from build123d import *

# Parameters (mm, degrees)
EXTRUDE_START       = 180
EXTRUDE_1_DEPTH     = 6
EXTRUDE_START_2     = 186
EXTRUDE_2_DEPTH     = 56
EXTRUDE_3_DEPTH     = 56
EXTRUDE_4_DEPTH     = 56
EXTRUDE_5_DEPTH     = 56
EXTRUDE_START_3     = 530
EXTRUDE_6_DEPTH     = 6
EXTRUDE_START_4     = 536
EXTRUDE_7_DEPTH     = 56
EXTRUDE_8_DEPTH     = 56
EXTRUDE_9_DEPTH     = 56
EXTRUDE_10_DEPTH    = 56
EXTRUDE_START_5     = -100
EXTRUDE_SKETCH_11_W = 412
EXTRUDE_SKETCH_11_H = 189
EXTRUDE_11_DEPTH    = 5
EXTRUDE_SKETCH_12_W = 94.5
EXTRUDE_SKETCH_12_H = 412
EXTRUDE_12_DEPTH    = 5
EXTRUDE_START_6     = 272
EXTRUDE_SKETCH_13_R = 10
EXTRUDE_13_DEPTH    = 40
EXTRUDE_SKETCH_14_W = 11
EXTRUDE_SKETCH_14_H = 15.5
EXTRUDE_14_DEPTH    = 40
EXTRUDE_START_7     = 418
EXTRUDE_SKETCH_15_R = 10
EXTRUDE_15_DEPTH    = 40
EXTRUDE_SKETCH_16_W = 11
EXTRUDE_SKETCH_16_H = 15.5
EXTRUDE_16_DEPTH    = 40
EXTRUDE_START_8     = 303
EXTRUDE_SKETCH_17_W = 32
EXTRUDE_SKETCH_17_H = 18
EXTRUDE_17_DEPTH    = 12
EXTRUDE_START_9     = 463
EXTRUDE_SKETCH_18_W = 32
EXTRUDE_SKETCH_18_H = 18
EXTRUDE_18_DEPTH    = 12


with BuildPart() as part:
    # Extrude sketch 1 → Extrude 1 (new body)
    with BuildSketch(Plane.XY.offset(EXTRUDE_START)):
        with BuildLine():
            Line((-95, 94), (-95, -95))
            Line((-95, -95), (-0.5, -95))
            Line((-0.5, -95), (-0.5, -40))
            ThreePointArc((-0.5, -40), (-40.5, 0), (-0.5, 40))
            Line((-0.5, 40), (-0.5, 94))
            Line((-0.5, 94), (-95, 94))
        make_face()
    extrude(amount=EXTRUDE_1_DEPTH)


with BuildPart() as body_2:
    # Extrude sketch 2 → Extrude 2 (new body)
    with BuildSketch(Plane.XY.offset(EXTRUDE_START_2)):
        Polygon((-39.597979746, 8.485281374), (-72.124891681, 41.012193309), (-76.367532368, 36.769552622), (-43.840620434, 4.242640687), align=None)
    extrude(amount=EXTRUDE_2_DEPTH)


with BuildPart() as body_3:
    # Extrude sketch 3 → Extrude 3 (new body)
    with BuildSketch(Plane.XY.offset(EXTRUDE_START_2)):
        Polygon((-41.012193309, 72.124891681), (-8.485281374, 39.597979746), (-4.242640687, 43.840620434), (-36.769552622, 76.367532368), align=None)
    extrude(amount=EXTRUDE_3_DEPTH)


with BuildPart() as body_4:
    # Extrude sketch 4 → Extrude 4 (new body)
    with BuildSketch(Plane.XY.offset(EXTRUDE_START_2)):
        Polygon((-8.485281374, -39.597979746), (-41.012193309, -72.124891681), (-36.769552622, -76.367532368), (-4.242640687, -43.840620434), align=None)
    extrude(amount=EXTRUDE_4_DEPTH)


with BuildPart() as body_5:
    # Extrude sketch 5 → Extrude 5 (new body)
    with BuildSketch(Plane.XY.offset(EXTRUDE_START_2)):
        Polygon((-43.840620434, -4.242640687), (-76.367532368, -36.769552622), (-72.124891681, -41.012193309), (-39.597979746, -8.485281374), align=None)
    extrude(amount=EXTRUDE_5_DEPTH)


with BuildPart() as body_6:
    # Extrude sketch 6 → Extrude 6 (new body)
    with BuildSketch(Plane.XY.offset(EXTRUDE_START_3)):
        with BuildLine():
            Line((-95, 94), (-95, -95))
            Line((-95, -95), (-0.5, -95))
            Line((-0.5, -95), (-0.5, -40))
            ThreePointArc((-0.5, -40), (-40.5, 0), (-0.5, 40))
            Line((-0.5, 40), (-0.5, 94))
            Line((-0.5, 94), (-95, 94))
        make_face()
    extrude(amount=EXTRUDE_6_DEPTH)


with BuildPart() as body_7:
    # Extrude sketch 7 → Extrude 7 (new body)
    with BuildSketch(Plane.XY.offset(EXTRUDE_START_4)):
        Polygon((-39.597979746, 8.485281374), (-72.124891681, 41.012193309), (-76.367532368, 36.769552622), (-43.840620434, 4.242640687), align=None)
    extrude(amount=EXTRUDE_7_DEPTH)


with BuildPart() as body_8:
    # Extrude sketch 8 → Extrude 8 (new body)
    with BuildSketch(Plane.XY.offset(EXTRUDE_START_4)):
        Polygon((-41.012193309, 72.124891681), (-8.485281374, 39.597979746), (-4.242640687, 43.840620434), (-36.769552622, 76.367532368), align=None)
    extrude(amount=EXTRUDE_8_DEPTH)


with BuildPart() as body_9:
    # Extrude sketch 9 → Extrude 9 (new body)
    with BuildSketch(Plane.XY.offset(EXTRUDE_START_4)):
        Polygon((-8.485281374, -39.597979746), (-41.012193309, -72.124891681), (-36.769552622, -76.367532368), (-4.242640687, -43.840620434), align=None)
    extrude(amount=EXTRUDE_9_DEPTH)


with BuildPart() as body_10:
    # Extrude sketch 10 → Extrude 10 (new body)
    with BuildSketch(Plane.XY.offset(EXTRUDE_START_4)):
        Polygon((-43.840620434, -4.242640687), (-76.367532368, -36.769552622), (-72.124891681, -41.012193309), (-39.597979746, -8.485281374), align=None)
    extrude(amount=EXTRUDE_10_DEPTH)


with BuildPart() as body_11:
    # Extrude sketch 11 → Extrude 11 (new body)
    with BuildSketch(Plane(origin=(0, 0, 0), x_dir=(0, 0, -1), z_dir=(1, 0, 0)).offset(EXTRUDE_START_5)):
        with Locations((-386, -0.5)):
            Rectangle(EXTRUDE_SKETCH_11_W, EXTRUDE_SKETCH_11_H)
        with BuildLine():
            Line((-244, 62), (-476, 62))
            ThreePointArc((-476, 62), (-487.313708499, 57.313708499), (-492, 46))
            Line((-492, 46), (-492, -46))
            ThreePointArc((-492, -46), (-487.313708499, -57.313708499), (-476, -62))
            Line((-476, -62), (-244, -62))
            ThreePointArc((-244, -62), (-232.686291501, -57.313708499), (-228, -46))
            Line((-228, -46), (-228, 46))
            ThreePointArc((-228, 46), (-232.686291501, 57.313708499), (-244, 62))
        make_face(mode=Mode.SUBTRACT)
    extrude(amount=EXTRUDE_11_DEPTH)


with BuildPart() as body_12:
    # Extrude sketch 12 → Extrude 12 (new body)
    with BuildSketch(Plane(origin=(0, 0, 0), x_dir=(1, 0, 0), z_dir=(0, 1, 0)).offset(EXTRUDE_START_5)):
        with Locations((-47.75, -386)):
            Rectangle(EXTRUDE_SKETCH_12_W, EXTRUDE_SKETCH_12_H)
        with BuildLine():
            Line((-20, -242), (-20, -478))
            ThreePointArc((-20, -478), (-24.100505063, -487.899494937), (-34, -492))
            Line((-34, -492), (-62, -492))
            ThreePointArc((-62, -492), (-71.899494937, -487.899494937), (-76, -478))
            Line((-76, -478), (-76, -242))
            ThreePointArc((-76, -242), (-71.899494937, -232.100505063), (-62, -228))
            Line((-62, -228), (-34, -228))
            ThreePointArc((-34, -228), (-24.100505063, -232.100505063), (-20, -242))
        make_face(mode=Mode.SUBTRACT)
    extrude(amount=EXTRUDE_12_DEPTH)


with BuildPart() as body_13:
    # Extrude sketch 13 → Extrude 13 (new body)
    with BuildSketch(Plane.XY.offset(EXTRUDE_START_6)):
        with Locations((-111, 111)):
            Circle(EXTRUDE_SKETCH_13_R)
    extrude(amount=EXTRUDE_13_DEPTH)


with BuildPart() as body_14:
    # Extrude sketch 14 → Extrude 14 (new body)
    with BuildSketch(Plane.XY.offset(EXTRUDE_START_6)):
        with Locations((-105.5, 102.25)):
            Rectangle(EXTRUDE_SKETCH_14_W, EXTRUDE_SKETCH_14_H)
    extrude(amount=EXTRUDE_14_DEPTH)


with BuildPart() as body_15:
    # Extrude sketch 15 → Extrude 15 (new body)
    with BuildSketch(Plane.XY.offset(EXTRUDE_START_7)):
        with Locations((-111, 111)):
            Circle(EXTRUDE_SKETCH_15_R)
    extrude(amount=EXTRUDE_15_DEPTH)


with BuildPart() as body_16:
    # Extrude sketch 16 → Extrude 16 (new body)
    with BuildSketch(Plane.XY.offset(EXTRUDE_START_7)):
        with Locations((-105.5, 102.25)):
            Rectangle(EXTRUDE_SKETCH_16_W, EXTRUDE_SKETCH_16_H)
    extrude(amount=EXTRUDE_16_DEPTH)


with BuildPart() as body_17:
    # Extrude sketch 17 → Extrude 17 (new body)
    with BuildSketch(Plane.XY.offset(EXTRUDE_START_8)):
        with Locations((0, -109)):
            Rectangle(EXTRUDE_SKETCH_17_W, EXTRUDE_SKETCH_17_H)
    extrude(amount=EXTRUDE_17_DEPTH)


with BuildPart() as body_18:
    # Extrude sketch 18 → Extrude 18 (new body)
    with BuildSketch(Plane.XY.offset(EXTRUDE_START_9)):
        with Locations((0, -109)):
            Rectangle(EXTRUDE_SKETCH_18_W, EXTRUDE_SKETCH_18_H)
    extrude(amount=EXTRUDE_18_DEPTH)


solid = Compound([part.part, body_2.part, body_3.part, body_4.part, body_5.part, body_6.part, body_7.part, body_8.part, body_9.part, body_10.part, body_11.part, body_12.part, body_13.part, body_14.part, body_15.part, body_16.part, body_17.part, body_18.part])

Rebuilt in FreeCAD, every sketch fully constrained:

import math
import FreeCAD as App
import Part
import Sketcher

V = App.Vector
Q = App.Units.Quantity

doc = App.newDocument("Part")
body = doc.addObject("PartDesign::Body", "Body")

# Sketch on XY plane
sketch1 = body.newObject("Sketcher::SketchObject", "Sketch")
sketch1.AttachmentSupport = (doc.getObject("XY_Plane"), [""])
sketch1.MapMode = "FlatFace"
sketch1.AttachmentOffset = App.Placement(V(0, 0, 180), App.Rotation())
sketch1.addGeometry(Part.LineSegment(V(-95, 94, 0), V(-95, -95, 0)), False)
sketch1.addGeometry(Part.LineSegment(V(-95, -95, 0), V(-0.5, -95, 0)), False)
sketch1.addGeometry(Part.LineSegment(V(-0.5, -95, 0), V(-0.5, -40, 0)), False)
sketch1.addGeometry(Part.ArcOfCircle(Part.Circle(V(-0.5, 0, 0), V(0, 0, 1), 40), math.radians(90), math.radians(270)), False)
sketch1.addGeometry(Part.LineSegment(V(-0.5, 40, 0), V(-0.5, 94, 0)), False)
sketch1.addGeometry(Part.LineSegment(V(-0.5, 94, 0), V(-95, 94, 0)), False)
sketch1.addConstraint(Sketcher.Constraint("Coincident", 0, 2, 1, 1))
sketch1.addConstraint(Sketcher.Constraint("Coincident", 1, 2, 2, 1))
sketch1.addConstraint(Sketcher.Constraint("Coincident", 2, 2, 3, 2))
sketch1.addConstraint(Sketcher.Constraint("Coincident", 3, 1, 4, 1))
sketch1.addConstraint(Sketcher.Constraint("Coincident", 4, 2, 5, 1))
sketch1.addConstraint(Sketcher.Constraint("Coincident", 5, 2, 0, 1))
sketch1.addConstraint(Sketcher.Constraint("Vertical", 0))
sketch1.addConstraint(Sketcher.Constraint("Horizontal", 1))
sketch1.addConstraint(Sketcher.Constraint("Vertical", 2))
sketch1.addConstraint(Sketcher.Constraint("Vertical", 4))
sketch1.addConstraint(Sketcher.Constraint("Horizontal", 5))
sketch1.addConstraint(Sketcher.Constraint("Symmetric", 2, 2, 3, 1, -1))
sketch1.addConstraint(Sketcher.Constraint("Vertical", 3, 3, 1, 2))
sketch1.addConstraint(Sketcher.Constraint("Radius", 3, Q("40 mm")))
sketch1.addConstraint(Sketcher.Constraint("DistanceY", 0, 2, 0, 1, Q("189 mm")))
sketch1.addConstraint(Sketcher.Constraint("DistanceY", 2, 1, 2, 2, Q("55 mm")))
sketch1.addConstraint(Sketcher.Constraint("DistanceX", 1, 1, 1, 2, Q("94.5 mm")))
sketch1.addConstraint(Sketcher.Constraint("DistanceX", 0, 2, -1, 1, Q("95 mm")))
pad1 = body.newObject("PartDesign::Pad", "Pad")
pad1.Profile = sketch1
pad1.Length = 6
body2 = doc.addObject("PartDesign::Body", "Body001")

# Sketch on XY plane
sketch2 = body2.newObject("Sketcher::SketchObject", "Sketch001")
sketch2.AttachmentSupport = (doc.getObject("XY_Plane001"), [""])
sketch2.MapMode = "FlatFace"
sketch2.AttachmentOffset = App.Placement(V(0, 0, 186), App.Rotation())
sketch2.addGeometry(Part.LineSegment(V(-39.59798, 8.485281, 0), V(-72.124892, 41.012193, 0)), False)
sketch2.addGeometry(Part.LineSegment(V(-72.124892, 41.012193, 0), V(-76.367532, 36.769553, 0)), False)
sketch2.addGeometry(Part.LineSegment(V(-76.367532, 36.769553, 0), V(-43.84062, 4.242641, 0)), False)
sketch2.addGeometry(Part.LineSegment(V(-43.84062, 4.242641, 0), V(-39.59798, 8.485281, 0)), False)
sketch2.addConstraint(Sketcher.Constraint("Coincident", 0, 2, 1, 1))
sketch2.addConstraint(Sketcher.Constraint("Coincident", 1, 2, 2, 1))
sketch2.addConstraint(Sketcher.Constraint("Coincident", 2, 2, 3, 1))
sketch2.addConstraint(Sketcher.Constraint("Coincident", 3, 2, 0, 1))
sketch2.addConstraint(Sketcher.Constraint("Perpendicular", 0, 1))
sketch2.addConstraint(Sketcher.Constraint("Perpendicular", 1, 2))
sketch2.addConstraint(Sketcher.Constraint("Perpendicular", 2, 3))
sketch2.addConstraint(Sketcher.Constraint("Angle", 0, Q("135 deg")))
sketch2.addConstraint(Sketcher.Constraint("Distance", 0, Q("46 mm")))
sketch2.addConstraint(Sketcher.Constraint("Distance", 1, Q("6 mm")))
sketch2.addConstraint(Sketcher.Constraint("DistanceX", 0, 2, -1, 1, Q("72.124892 mm")))
sketch2.addConstraint(Sketcher.Constraint("DistanceY", -1, 1, 2, 2, Q("4.242641 mm")))
pad2 = body2.newObject("PartDesign::Pad", "Pad001")
pad2.Profile = sketch2
pad2.Length = 56
body3 = doc.addObject("PartDesign::Body", "Body002")

# Sketch on XY plane
sketch3 = body3.newObject("Sketcher::SketchObject", "Sketch002")
sketch3.AttachmentSupport = (doc.getObject("XY_Plane002"), [""])
sketch3.MapMode = "FlatFace"
sketch3.AttachmentOffset = App.Placement(V(0, 0, 186), App.Rotation())
sketch3.addGeometry(Part.LineSegment(V(-41.012193, 72.124892, 0), V(-8.485281, 39.59798, 0)), False)
sketch3.addGeometry(Part.LineSegment(V(-8.485281, 39.59798, 0), V(-4.242641, 43.84062, 0)), False)
sketch3.addGeometry(Part.LineSegment(V(-4.242641, 43.84062, 0), V(-36.769553, 76.367532, 0)), False)
sketch3.addGeometry(Part.LineSegment(V(-36.769553, 76.367532, 0), V(-41.012193, 72.124892, 0)), False)
sketch3.addConstraint(Sketcher.Constraint("Coincident", 0, 2, 1, 1))
sketch3.addConstraint(Sketcher.Constraint("Coincident", 1, 2, 2, 1))
sketch3.addConstraint(Sketcher.Constraint("Coincident", 2, 2, 3, 1))
sketch3.addConstraint(Sketcher.Constraint("Coincident", 3, 2, 0, 1))
sketch3.addConstraint(Sketcher.Constraint("Perpendicular", 0, 1))
sketch3.addConstraint(Sketcher.Constraint("Perpendicular", 1, 2))
sketch3.addConstraint(Sketcher.Constraint("Perpendicular", 2, 3))
sketch3.addConstraint(Sketcher.Constraint("Angle", 0, Q("-45 deg")))
sketch3.addConstraint(Sketcher.Constraint("Distance", 0, Q("46 mm")))
sketch3.addConstraint(Sketcher.Constraint("Distance", 1, Q("6 mm")))
sketch3.addConstraint(Sketcher.Constraint("DistanceX", 0, 2, -1, 1, Q("8.485281 mm")))
sketch3.addConstraint(Sketcher.Constraint("DistanceY", -1, 1, 0, 2, Q("39.59798 mm")))
pad3 = body3.newObject("PartDesign::Pad", "Pad002")
pad3.Profile = sketch3
pad3.Length = 56
body4 = doc.addObject("PartDesign::Body", "Body003")

# Sketch on XY plane
sketch4 = body4.newObject("Sketcher::SketchObject", "Sketch003")
sketch4.AttachmentSupport = (doc.getObject("XY_Plane003"), [""])
sketch4.MapMode = "FlatFace"
sketch4.AttachmentOffset = App.Placement(V(0, 0, 186), App.Rotation())
sketch4.addGeometry(Part.LineSegment(V(-8.485281, -39.59798, 0), V(-41.012193, -72.124892, 0)), False)
sketch4.addGeometry(Part.LineSegment(V(-41.012193, -72.124892, 0), V(-36.769553, -76.367532, 0)), False)
sketch4.addGeometry(Part.LineSegment(V(-36.769553, -76.367532, 0), V(-4.242641, -43.84062, 0)), False)
sketch4.addGeometry(Part.LineSegment(V(-4.242641, -43.84062, 0), V(-8.485281, -39.59798, 0)), False)
sketch4.addConstraint(Sketcher.Constraint("Coincident", 0, 2, 1, 1))
sketch4.addConstraint(Sketcher.Constraint("Coincident", 1, 2, 2, 1))
sketch4.addConstraint(Sketcher.Constraint("Coincident", 2, 2, 3, 1))
sketch4.addConstraint(Sketcher.Constraint("Coincident", 3, 2, 0, 1))
sketch4.addConstraint(Sketcher.Constraint("Perpendicular", 0, 1))
sketch4.addConstraint(Sketcher.Constraint("Perpendicular", 1, 2))
sketch4.addConstraint(Sketcher.Constraint("Perpendicular", 2, 3))
sketch4.addConstraint(Sketcher.Constraint("Angle", 0, Q("-135 deg")))
sketch4.addConstraint(Sketcher.Constraint("Distance", 0, Q("46 mm")))
sketch4.addConstraint(Sketcher.Constraint("Distance", 1, Q("6 mm")))
sketch4.addConstraint(Sketcher.Constraint("DistanceY", 0, 2, -1, 1, Q("72.124892 mm")))
sketch4.addConstraint(Sketcher.Constraint("DistanceX", 2, 2, -1, 1, Q("4.242641 mm")))
pad4 = body4.newObject("PartDesign::Pad", "Pad003")
pad4.Profile = sketch4
pad4.Length = 56
body5 = doc.addObject("PartDesign::Body", "Body004")

# Sketch on XY plane
sketch5 = body5.newObject("Sketcher::SketchObject", "Sketch004")
sketch5.AttachmentSupport = (doc.getObject("XY_Plane004"), [""])
sketch5.MapMode = "FlatFace"
sketch5.AttachmentOffset = App.Placement(V(0, 0, 186), App.Rotation())
sketch5.addGeometry(Part.LineSegment(V(-43.84062, -4.242641, 0), V(-76.367532, -36.769553, 0)), False)
sketch5.addGeometry(Part.LineSegment(V(-76.367532, -36.769553, 0), V(-72.124892, -41.012193, 0)), False)
sketch5.addGeometry(Part.LineSegment(V(-72.124892, -41.012193, 0), V(-39.59798, -8.485281, 0)), False)
sketch5.addGeometry(Part.LineSegment(V(-39.59798, -8.485281, 0), V(-43.84062, -4.242641, 0)), False)
sketch5.addConstraint(Sketcher.Constraint("Coincident", 0, 2, 1, 1))
sketch5.addConstraint(Sketcher.Constraint("Coincident", 1, 2, 2, 1))
sketch5.addConstraint(Sketcher.Constraint("Coincident", 2, 2, 3, 1))
sketch5.addConstraint(Sketcher.Constraint("Coincident", 3, 2, 0, 1))
sketch5.addConstraint(Sketcher.Constraint("Perpendicular", 0, 1))
sketch5.addConstraint(Sketcher.Constraint("Perpendicular", 1, 2))
sketch5.addConstraint(Sketcher.Constraint("Perpendicular", 2, 3))
sketch5.addConstraint(Sketcher.Constraint("Angle", 0, Q("-135 deg")))
sketch5.addConstraint(Sketcher.Constraint("Distance", 0, Q("46 mm")))
sketch5.addConstraint(Sketcher.Constraint("Distance", 1, Q("6 mm")))
sketch5.addConstraint(Sketcher.Constraint("DistanceX", 1, 2, -1, 1, Q("72.124892 mm")))
sketch5.addConstraint(Sketcher.Constraint("DistanceY", 2, 2, -1, 1, Q("8.485281 mm")))
pad5 = body5.newObject("PartDesign::Pad", "Pad004")
pad5.Profile = sketch5
pad5.Length = 56
body6 = doc.addObject("PartDesign::Body", "Body005")

# Sketch on XY plane
sketch6 = body6.newObject("Sketcher::SketchObject", "Sketch005")
sketch6.AttachmentSupport = (doc.getObject("XY_Plane005"), [""])
sketch6.MapMode = "FlatFace"
sketch6.AttachmentOffset = App.Placement(V(0, 0, 530), App.Rotation())
sketch6.addGeometry(Part.LineSegment(V(-95, 94, 0), V(-95, -95, 0)), False)
sketch6.addGeometry(Part.LineSegment(V(-95, -95, 0), V(-0.5, -95, 0)), False)
sketch6.addGeometry(Part.LineSegment(V(-0.5, -95, 0), V(-0.5, -40, 0)), False)
sketch6.addGeometry(Part.ArcOfCircle(Part.Circle(V(-0.5, 0, 0), V(0, 0, 1), 40), math.radians(90), math.radians(270)), False)
sketch6.addGeometry(Part.LineSegment(V(-0.5, 40, 0), V(-0.5, 94, 0)), False)
sketch6.addGeometry(Part.LineSegment(V(-0.5, 94, 0), V(-95, 94, 0)), False)
sketch6.addConstraint(Sketcher.Constraint("Coincident", 0, 2, 1, 1))
sketch6.addConstraint(Sketcher.Constraint("Coincident", 1, 2, 2, 1))
sketch6.addConstraint(Sketcher.Constraint("Coincident", 2, 2, 3, 2))
sketch6.addConstraint(Sketcher.Constraint("Coincident", 3, 1, 4, 1))
sketch6.addConstraint(Sketcher.Constraint("Coincident", 4, 2, 5, 1))
sketch6.addConstraint(Sketcher.Constraint("Coincident", 5, 2, 0, 1))
sketch6.addConstraint(Sketcher.Constraint("Vertical", 0))
sketch6.addConstraint(Sketcher.Constraint("Horizontal", 1))
sketch6.addConstraint(Sketcher.Constraint("Vertical", 2))
sketch6.addConstraint(Sketcher.Constraint("Vertical", 4))
sketch6.addConstraint(Sketcher.Constraint("Horizontal", 5))
sketch6.addConstraint(Sketcher.Constraint("Symmetric", 2, 2, 3, 1, -1))
sketch6.addConstraint(Sketcher.Constraint("Vertical", 3, 3, 1, 2))
sketch6.addConstraint(Sketcher.Constraint("Radius", 3, Q("40 mm")))
sketch6.addConstraint(Sketcher.Constraint("DistanceY", 0, 2, 0, 1, Q("189 mm")))
sketch6.addConstraint(Sketcher.Constraint("DistanceY", 2, 1, 2, 2, Q("55 mm")))
sketch6.addConstraint(Sketcher.Constraint("DistanceX", 1, 1, 1, 2, Q("94.5 mm")))
sketch6.addConstraint(Sketcher.Constraint("DistanceX", 0, 2, -1, 1, Q("95 mm")))
pad6 = body6.newObject("PartDesign::Pad", "Pad005")
pad6.Profile = sketch6
pad6.Length = 6
body7 = doc.addObject("PartDesign::Body", "Body006")

# Sketch on XY plane
sketch7 = body7.newObject("Sketcher::SketchObject", "Sketch006")
sketch7.AttachmentSupport = (doc.getObject("XY_Plane006"), [""])
sketch7.MapMode = "FlatFace"
sketch7.AttachmentOffset = App.Placement(V(0, 0, 536), App.Rotation())
sketch7.addGeometry(Part.LineSegment(V(-39.59798, 8.485281, 0), V(-72.124892, 41.012193, 0)), False)
sketch7.addGeometry(Part.LineSegment(V(-72.124892, 41.012193, 0), V(-76.367532, 36.769553, 0)), False)
sketch7.addGeometry(Part.LineSegment(V(-76.367532, 36.769553, 0), V(-43.84062, 4.242641, 0)), False)
sketch7.addGeometry(Part.LineSegment(V(-43.84062, 4.242641, 0), V(-39.59798, 8.485281, 0)), False)
sketch7.addConstraint(Sketcher.Constraint("Coincident", 0, 2, 1, 1))
sketch7.addConstraint(Sketcher.Constraint("Coincident", 1, 2, 2, 1))
sketch7.addConstraint(Sketcher.Constraint("Coincident", 2, 2, 3, 1))
sketch7.addConstraint(Sketcher.Constraint("Coincident", 3, 2, 0, 1))
sketch7.addConstraint(Sketcher.Constraint("Perpendicular", 0, 1))
sketch7.addConstraint(Sketcher.Constraint("Perpendicular", 1, 2))
sketch7.addConstraint(Sketcher.Constraint("Perpendicular", 2, 3))
sketch7.addConstraint(Sketcher.Constraint("Angle", 0, Q("135 deg")))
sketch7.addConstraint(Sketcher.Constraint("Distance", 0, Q("46 mm")))
sketch7.addConstraint(Sketcher.Constraint("Distance", 1, Q("6 mm")))
sketch7.addConstraint(Sketcher.Constraint("DistanceX", 0, 2, -1, 1, Q("72.124892 mm")))
sketch7.addConstraint(Sketcher.Constraint("DistanceY", -1, 1, 2, 2, Q("4.242641 mm")))
pad7 = body7.newObject("PartDesign::Pad", "Pad006")
pad7.Profile = sketch7
pad7.Length = 56
body8 = doc.addObject("PartDesign::Body", "Body007")

# Sketch on XY plane
sketch8 = body8.newObject("Sketcher::SketchObject", "Sketch007")
sketch8.AttachmentSupport = (doc.getObject("XY_Plane007"), [""])
sketch8.MapMode = "FlatFace"
sketch8.AttachmentOffset = App.Placement(V(0, 0, 536), App.Rotation())
sketch8.addGeometry(Part.LineSegment(V(-41.012193, 72.124892, 0), V(-8.485281, 39.59798, 0)), False)
sketch8.addGeometry(Part.LineSegment(V(-8.485281, 39.59798, 0), V(-4.242641, 43.84062, 0)), False)
sketch8.addGeometry(Part.LineSegment(V(-4.242641, 43.84062, 0), V(-36.769553, 76.367532, 0)), False)
sketch8.addGeometry(Part.LineSegment(V(-36.769553, 76.367532, 0), V(-41.012193, 72.124892, 0)), False)
sketch8.addConstraint(Sketcher.Constraint("Coincident", 0, 2, 1, 1))
sketch8.addConstraint(Sketcher.Constraint("Coincident", 1, 2, 2, 1))
sketch8.addConstraint(Sketcher.Constraint("Coincident", 2, 2, 3, 1))
sketch8.addConstraint(Sketcher.Constraint("Coincident", 3, 2, 0, 1))
sketch8.addConstraint(Sketcher.Constraint("Perpendicular", 0, 1))
sketch8.addConstraint(Sketcher.Constraint("Perpendicular", 1, 2))
sketch8.addConstraint(Sketcher.Constraint("Perpendicular", 2, 3))
sketch8.addConstraint(Sketcher.Constraint("Angle", 0, Q("-45 deg")))
sketch8.addConstraint(Sketcher.Constraint("Distance", 0, Q("46 mm")))
sketch8.addConstraint(Sketcher.Constraint("Distance", 1, Q("6 mm")))
sketch8.addConstraint(Sketcher.Constraint("DistanceX", 0, 2, -1, 1, Q("8.485281 mm")))
sketch8.addConstraint(Sketcher.Constraint("DistanceY", -1, 1, 0, 2, Q("39.59798 mm")))
pad8 = body8.newObject("PartDesign::Pad", "Pad007")
pad8.Profile = sketch8
pad8.Length = 56
body9 = doc.addObject("PartDesign::Body", "Body008")

# Sketch on XY plane
sketch9 = body9.newObject("Sketcher::SketchObject", "Sketch008")
sketch9.AttachmentSupport = (doc.getObject("XY_Plane008"), [""])
sketch9.MapMode = "FlatFace"
sketch9.AttachmentOffset = App.Placement(V(0, 0, 536), App.Rotation())
sketch9.addGeometry(Part.LineSegment(V(-8.485281, -39.59798, 0), V(-41.012193, -72.124892, 0)), False)
sketch9.addGeometry(Part.LineSegment(V(-41.012193, -72.124892, 0), V(-36.769553, -76.367532, 0)), False)
sketch9.addGeometry(Part.LineSegment(V(-36.769553, -76.367532, 0), V(-4.242641, -43.84062, 0)), False)
sketch9.addGeometry(Part.LineSegment(V(-4.242641, -43.84062, 0), V(-8.485281, -39.59798, 0)), False)
sketch9.addConstraint(Sketcher.Constraint("Coincident", 0, 2, 1, 1))
sketch9.addConstraint(Sketcher.Constraint("Coincident", 1, 2, 2, 1))
sketch9.addConstraint(Sketcher.Constraint("Coincident", 2, 2, 3, 1))
sketch9.addConstraint(Sketcher.Constraint("Coincident", 3, 2, 0, 1))
sketch9.addConstraint(Sketcher.Constraint("Perpendicular", 0, 1))
sketch9.addConstraint(Sketcher.Constraint("Perpendicular", 1, 2))
sketch9.addConstraint(Sketcher.Constraint("Perpendicular", 2, 3))
sketch9.addConstraint(Sketcher.Constraint("Angle", 0, Q("-135 deg")))
sketch9.addConstraint(Sketcher.Constraint("Distance", 0, Q("46 mm")))
sketch9.addConstraint(Sketcher.Constraint("Distance", 1, Q("6 mm")))
sketch9.addConstraint(Sketcher.Constraint("DistanceY", 0, 2, -1, 1, Q("72.124892 mm")))
sketch9.addConstraint(Sketcher.Constraint("DistanceX", 2, 2, -1, 1, Q("4.242641 mm")))
pad9 = body9.newObject("PartDesign::Pad", "Pad008")
pad9.Profile = sketch9
pad9.Length = 56
body10 = doc.addObject("PartDesign::Body", "Body009")

# Sketch on XY plane
sketch10 = body10.newObject("Sketcher::SketchObject", "Sketch009")
sketch10.AttachmentSupport = (doc.getObject("XY_Plane009"), [""])
sketch10.MapMode = "FlatFace"
sketch10.AttachmentOffset = App.Placement(V(0, 0, 536), App.Rotation())
sketch10.addGeometry(Part.LineSegment(V(-43.84062, -4.242641, 0), V(-76.367532, -36.769553, 0)), False)
sketch10.addGeometry(Part.LineSegment(V(-76.367532, -36.769553, 0), V(-72.124892, -41.012193, 0)), False)
sketch10.addGeometry(Part.LineSegment(V(-72.124892, -41.012193, 0), V(-39.59798, -8.485281, 0)), False)
sketch10.addGeometry(Part.LineSegment(V(-39.59798, -8.485281, 0), V(-43.84062, -4.242641, 0)), False)
sketch10.addConstraint(Sketcher.Constraint("Coincident", 0, 2, 1, 1))
sketch10.addConstraint(Sketcher.Constraint("Coincident", 1, 2, 2, 1))
sketch10.addConstraint(Sketcher.Constraint("Coincident", 2, 2, 3, 1))
sketch10.addConstraint(Sketcher.Constraint("Coincident", 3, 2, 0, 1))
sketch10.addConstraint(Sketcher.Constraint("Perpendicular", 0, 1))
sketch10.addConstraint(Sketcher.Constraint("Perpendicular", 1, 2))
sketch10.addConstraint(Sketcher.Constraint("Perpendicular", 2, 3))
sketch10.addConstraint(Sketcher.Constraint("Angle", 0, Q("-135 deg")))
sketch10.addConstraint(Sketcher.Constraint("Distance", 0, Q("46 mm")))
sketch10.addConstraint(Sketcher.Constraint("Distance", 1, Q("6 mm")))
sketch10.addConstraint(Sketcher.Constraint("DistanceX", 1, 2, -1, 1, Q("72.124892 mm")))
sketch10.addConstraint(Sketcher.Constraint("DistanceY", 2, 2, -1, 1, Q("8.485281 mm")))
pad10 = body10.newObject("PartDesign::Pad", "Pad009")
pad10.Profile = sketch10
pad10.Length = 56
body11 = doc.addObject("PartDesign::Body", "Body010")

# Sketch on YZ plane
sketch11 = body11.newObject("Sketcher::SketchObject", "Sketch010")
sketch11.AttachmentSupport = (doc.getObject("YZ_Plane010"), [""])
sketch11.MapMode = "FlatFace"
sketch11.AttachmentOffset = App.Placement(V(0, 0, -100), App.Rotation())
sketch11.addGeometry(Part.LineSegment(V(94, 592, 0), V(-95, 592, 0)), False)
sketch11.addGeometry(Part.LineSegment(V(-95, 592, 0), V(-95, 180, 0)), False)
sketch11.addGeometry(Part.LineSegment(V(-95, 180, 0), V(94, 180, 0)), False)
sketch11.addGeometry(Part.LineSegment(V(94, 180, 0), V(94, 592, 0)), False)
sketch11.addGeometry(Part.LineSegment(V(62, 476, 0), V(62, 244, 0)), False)
sketch11.addGeometry(Part.ArcOfCircle(Part.Circle(V(46, 244, 0), V(0, 0, 1), 16), math.radians(-90), math.radians(0)), False)
sketch11.addGeometry(Part.LineSegment(V(46, 228, 0), V(-46, 228, 0)), False)
sketch11.addGeometry(Part.ArcOfCircle(Part.Circle(V(-46, 244, 0), V(0, 0, 1), 16), math.radians(180), math.radians(270)), False)
sketch11.addGeometry(Part.LineSegment(V(-62, 244, 0), V(-62, 476, 0)), False)
sketch11.addGeometry(Part.ArcOfCircle(Part.Circle(V(-46, 476, 0), V(0, 0, 1), 16), math.radians(90), math.radians(180)), False)
sketch11.addGeometry(Part.LineSegment(V(-46, 492, 0), V(46, 492, 0)), False)
sketch11.addGeometry(Part.ArcOfCircle(Part.Circle(V(46, 476, 0), V(0, 0, 1), 16), math.radians(0), math.radians(90)), False)
sketch11.addConstraint(Sketcher.Constraint("Coincident", 0, 2, 1, 1))
sketch11.addConstraint(Sketcher.Constraint("Coincident", 1, 2, 2, 1))
sketch11.addConstraint(Sketcher.Constraint("Coincident", 2, 2, 3, 1))
sketch11.addConstraint(Sketcher.Constraint("Coincident", 3, 2, 0, 1))
sketch11.addConstraint(Sketcher.Constraint("Tangent", 4, 2, 5, 2))
sketch11.addConstraint(Sketcher.Constraint("Tangent", 5, 1, 6, 1))
sketch11.addConstraint(Sketcher.Constraint("Tangent", 6, 2, 7, 2))
sketch11.addConstraint(Sketcher.Constraint("Tangent", 7, 1, 8, 1))
sketch11.addConstraint(Sketcher.Constraint("Tangent", 8, 2, 9, 2))
sketch11.addConstraint(Sketcher.Constraint("Tangent", 9, 1, 10, 1))
sketch11.addConstraint(Sketcher.Constraint("Tangent", 10, 2, 11, 2))
sketch11.addConstraint(Sketcher.Constraint("Tangent", 11, 1, 4, 1))
sketch11.addConstraint(Sketcher.Constraint("Horizontal", 0))
sketch11.addConstraint(Sketcher.Constraint("Vertical", 1))
sketch11.addConstraint(Sketcher.Constraint("Horizontal", 2))
sketch11.addConstraint(Sketcher.Constraint("Vertical", 3))
sketch11.addConstraint(Sketcher.Constraint("Vertical", 4))
sketch11.addConstraint(Sketcher.Constraint("Horizontal", 6))
sketch11.addConstraint(Sketcher.Constraint("Vertical", 8))
sketch11.addConstraint(Sketcher.Constraint("Horizontal", 10))
sketch11.addConstraint(Sketcher.Constraint("Equal", 5, 7))
sketch11.addConstraint(Sketcher.Constraint("Equal", 7, 9))
sketch11.addConstraint(Sketcher.Constraint("Equal", 9, 11))
sketch11.addConstraint(Sketcher.Constraint("Radius", 5, Q("16 mm")))
sketch11.addConstraint(Sketcher.Constraint("DistanceX", 0, 2, 0, 1, Q("189 mm")))
sketch11.addConstraint(Sketcher.Constraint("DistanceX", 6, 2, 6, 1, Q("92 mm")))
sketch11.addConstraint(Sketcher.Constraint("DistanceY", 1, 2, 1, 1, Q("412 mm")))
sketch11.addConstraint(Sketcher.Constraint("DistanceY", 4, 2, 4, 1, Q("232 mm")))
sketch11.addConstraint(Sketcher.Constraint("DistanceX", -1, 1, 5, 3, Q("46 mm")))
sketch11.addConstraint(Sketcher.Constraint("DistanceY", -1, 1, 5, 3, Q("244 mm")))
sketch11.addConstraint(Sketcher.Constraint("DistanceX", 0, 2, -1, 1, Q("95 mm")))
sketch11.addConstraint(Sketcher.Constraint("DistanceY", -1, 1, 0, 2, Q("592 mm")))
pad11 = body11.newObject("PartDesign::Pad", "Pad010")
pad11.Profile = sketch11
pad11.Length = 5
body12 = doc.addObject("PartDesign::Body", "Body011")

# Sketch on XZ plane
sketch12 = body12.newObject("Sketcher::SketchObject", "Sketch011")
sketch12.AttachmentSupport = (doc.getObject("XZ_Plane011"), [""])
sketch12.MapMode = "FlatFace"
sketch12.AttachmentOffset = App.Placement(V(0, 0, 100), App.Rotation())
sketch12.addGeometry(Part.LineSegment(V(-95, 180, 0), V(-95, 592, 0)), False)
sketch12.addGeometry(Part.LineSegment(V(-95, 592, 0), V(-0.5, 592, 0)), False)
sketch12.addGeometry(Part.LineSegment(V(-0.5, 592, 0), V(-0.5, 180, 0)), False)
sketch12.addGeometry(Part.LineSegment(V(-0.5, 180, 0), V(-95, 180, 0)), False)
sketch12.addGeometry(Part.ArcOfCircle(Part.Circle(V(-34, 242, 0), V(0, 0, 1), 14), math.radians(-90), math.radians(0)), False)
sketch12.addGeometry(Part.LineSegment(V(-20, 242, 0), V(-20, 478, 0)), False)
sketch12.addGeometry(Part.ArcOfCircle(Part.Circle(V(-34, 478, 0), V(0, 0, 1), 14), math.radians(0), math.radians(90)), False)
sketch12.addGeometry(Part.LineSegment(V(-34, 492, 0), V(-62, 492, 0)), False)
sketch12.addGeometry(Part.ArcOfCircle(Part.Circle(V(-62, 478, 0), V(0, 0, 1), 14), math.radians(90), math.radians(180)), False)
sketch12.addGeometry(Part.LineSegment(V(-76, 478, 0), V(-76, 242, 0)), False)
sketch12.addGeometry(Part.ArcOfCircle(Part.Circle(V(-62, 242, 0), V(0, 0, 1), 14), math.radians(180), math.radians(270)), False)
sketch12.addGeometry(Part.LineSegment(V(-62, 228, 0), V(-34, 228, 0)), False)
sketch12.addConstraint(Sketcher.Constraint("Coincident", 0, 2, 1, 1))
sketch12.addConstraint(Sketcher.Constraint("Coincident", 1, 2, 2, 1))
sketch12.addConstraint(Sketcher.Constraint("Coincident", 2, 2, 3, 1))
sketch12.addConstraint(Sketcher.Constraint("Coincident", 3, 2, 0, 1))
sketch12.addConstraint(Sketcher.Constraint("Tangent", 4, 2, 5, 1))
sketch12.addConstraint(Sketcher.Constraint("Tangent", 5, 2, 6, 1))
sketch12.addConstraint(Sketcher.Constraint("Tangent", 6, 2, 7, 1))
sketch12.addConstraint(Sketcher.Constraint("Tangent", 7, 2, 8, 1))
sketch12.addConstraint(Sketcher.Constraint("Tangent", 8, 2, 9, 1))
sketch12.addConstraint(Sketcher.Constraint("Tangent", 9, 2, 10, 1))
sketch12.addConstraint(Sketcher.Constraint("Tangent", 10, 2, 11, 1))
sketch12.addConstraint(Sketcher.Constraint("Tangent", 11, 2, 4, 1))
sketch12.addConstraint(Sketcher.Constraint("Vertical", 0))
sketch12.addConstraint(Sketcher.Constraint("Horizontal", 1))
sketch12.addConstraint(Sketcher.Constraint("Vertical", 2))
sketch12.addConstraint(Sketcher.Constraint("Horizontal", 3))
sketch12.addConstraint(Sketcher.Constraint("Vertical", 5))
sketch12.addConstraint(Sketcher.Constraint("Horizontal", 7))
sketch12.addConstraint(Sketcher.Constraint("Vertical", 9))
sketch12.addConstraint(Sketcher.Constraint("Horizontal", 11))
sketch12.addConstraint(Sketcher.Constraint("Equal", 4, 6))
sketch12.addConstraint(Sketcher.Constraint("Equal", 6, 8))
sketch12.addConstraint(Sketcher.Constraint("Equal", 8, 10))
sketch12.addConstraint(Sketcher.Constraint("Radius", 4, Q("14 mm")))
sketch12.addConstraint(Sketcher.Constraint("DistanceX", 7, 2, 7, 1, Q("28 mm")))
sketch12.addConstraint(Sketcher.Constraint("DistanceY", 0, 1, 0, 2, Q("412 mm")))
sketch12.addConstraint(Sketcher.Constraint("DistanceY", 5, 1, 5, 2, Q("236 mm")))
sketch12.addConstraint(Sketcher.Constraint("DistanceX", 1, 1, 1, 2, Q("94.5 mm")))
sketch12.addConstraint(Sketcher.Constraint("DistanceX", 4, 3, -1, 1, Q("34 mm")))
sketch12.addConstraint(Sketcher.Constraint("DistanceY", -1, 1, 4, 3, Q("242 mm")))
sketch12.addConstraint(Sketcher.Constraint("DistanceX", 0, 2, -1, 1, Q("95 mm")))
sketch12.addConstraint(Sketcher.Constraint("DistanceY", -1, 1, 0, 2, Q("592 mm")))
pad12 = body12.newObject("PartDesign::Pad", "Pad011")
pad12.Profile = sketch12
pad12.Length = 5
pad12.Reversed = True
body13 = doc.addObject("PartDesign::Body", "Body012")

# Sketch on XY plane
sketch13 = body13.newObject("Sketcher::SketchObject", "Sketch012")
sketch13.AttachmentSupport = (doc.getObject("XY_Plane012"), [""])
sketch13.MapMode = "FlatFace"
sketch13.AttachmentOffset = App.Placement(V(0, 0, 272), App.Rotation())
sketch13.addGeometry(Part.Circle(V(-111, 111, 0), V(0, 0, 1), 10), False)
sketch13.addConstraint(Sketcher.Constraint("Diameter", 0, Q("20 mm")))
sketch13.addConstraint(Sketcher.Constraint("DistanceX", 0, 3, -1, 1, Q("111 mm")))
sketch13.addConstraint(Sketcher.Constraint("DistanceY", -1, 1, 0, 3, Q("111 mm")))
pad13 = body13.newObject("PartDesign::Pad", "Pad012")
pad13.Profile = sketch13
pad13.Length = 40
body14 = doc.addObject("PartDesign::Body", "Body013")

# Sketch on XY plane
sketch14 = body14.newObject("Sketcher::SketchObject", "Sketch013")
sketch14.AttachmentSupport = (doc.getObject("XY_Plane013"), [""])
sketch14.MapMode = "FlatFace"
sketch14.AttachmentOffset = App.Placement(V(0, 0, 272), App.Rotation())
sketch14.addGeometry(Part.LineSegment(V(-111, 110, 0), V(-111, 94.5, 0)), False)
sketch14.addGeometry(Part.LineSegment(V(-111, 94.5, 0), V(-100, 94.5, 0)), False)
sketch14.addGeometry(Part.LineSegment(V(-100, 94.5, 0), V(-100, 110, 0)), False)
sketch14.addGeometry(Part.LineSegment(V(-100, 110, 0), V(-111, 110, 0)), False)
sketch14.addConstraint(Sketcher.Constraint("Coincident", 0, 2, 1, 1))
sketch14.addConstraint(Sketcher.Constraint("Coincident", 1, 2, 2, 1))
sketch14.addConstraint(Sketcher.Constraint("Coincident", 2, 2, 3, 1))
sketch14.addConstraint(Sketcher.Constraint("Coincident", 3, 2, 0, 1))
sketch14.addConstraint(Sketcher.Constraint("Vertical", 0))
sketch14.addConstraint(Sketcher.Constraint("Horizontal", 1))
sketch14.addConstraint(Sketcher.Constraint("Vertical", 2))
sketch14.addConstraint(Sketcher.Constraint("Horizontal", 3))
sketch14.addConstraint(Sketcher.Constraint("DistanceX", 1, 1, 1, 2, Q("11 mm")))
sketch14.addConstraint(Sketcher.Constraint("DistanceY", 0, 2, 0, 1, Q("15.5 mm")))
sketch14.addConstraint(Sketcher.Constraint("DistanceX", 0, 2, -1, 1, Q("111 mm")))
sketch14.addConstraint(Sketcher.Constraint("DistanceY", -1, 1, 2, 2, Q("110 mm")))
pad14 = body14.newObject("PartDesign::Pad", "Pad013")
pad14.Profile = sketch14
pad14.Length = 40
body15 = doc.addObject("PartDesign::Body", "Body014")

# Sketch on XY plane
sketch15 = body15.newObject("Sketcher::SketchObject", "Sketch014")
sketch15.AttachmentSupport = (doc.getObject("XY_Plane014"), [""])
sketch15.MapMode = "FlatFace"
sketch15.AttachmentOffset = App.Placement(V(0, 0, 418), App.Rotation())
sketch15.addGeometry(Part.Circle(V(-111, 111, 0), V(0, 0, 1), 10), False)
sketch15.addConstraint(Sketcher.Constraint("Diameter", 0, Q("20 mm")))
sketch15.addConstraint(Sketcher.Constraint("DistanceX", 0, 3, -1, 1, Q("111 mm")))
sketch15.addConstraint(Sketcher.Constraint("DistanceY", -1, 1, 0, 3, Q("111 mm")))
pad15 = body15.newObject("PartDesign::Pad", "Pad014")
pad15.Profile = sketch15
pad15.Length = 40
body16 = doc.addObject("PartDesign::Body", "Body015")

# Sketch on XY plane
sketch16 = body16.newObject("Sketcher::SketchObject", "Sketch015")
sketch16.AttachmentSupport = (doc.getObject("XY_Plane015"), [""])
sketch16.MapMode = "FlatFace"
sketch16.AttachmentOffset = App.Placement(V(0, 0, 418), App.Rotation())
sketch16.addGeometry(Part.LineSegment(V(-111, 110, 0), V(-111, 94.5, 0)), False)
sketch16.addGeometry(Part.LineSegment(V(-111, 94.5, 0), V(-100, 94.5, 0)), False)
sketch16.addGeometry(Part.LineSegment(V(-100, 94.5, 0), V(-100, 110, 0)), False)
sketch16.addGeometry(Part.LineSegment(V(-100, 110, 0), V(-111, 110, 0)), False)
sketch16.addConstraint(Sketcher.Constraint("Coincident", 0, 2, 1, 1))
sketch16.addConstraint(Sketcher.Constraint("Coincident", 1, 2, 2, 1))
sketch16.addConstraint(Sketcher.Constraint("Coincident", 2, 2, 3, 1))
sketch16.addConstraint(Sketcher.Constraint("Coincident", 3, 2, 0, 1))
sketch16.addConstraint(Sketcher.Constraint("Vertical", 0))
sketch16.addConstraint(Sketcher.Constraint("Horizontal", 1))
sketch16.addConstraint(Sketcher.Constraint("Vertical", 2))
sketch16.addConstraint(Sketcher.Constraint("Horizontal", 3))
sketch16.addConstraint(Sketcher.Constraint("DistanceX", 1, 1, 1, 2, Q("11 mm")))
sketch16.addConstraint(Sketcher.Constraint("DistanceY", 0, 2, 0, 1, Q("15.5 mm")))
sketch16.addConstraint(Sketcher.Constraint("DistanceX", 0, 2, -1, 1, Q("111 mm")))
sketch16.addConstraint(Sketcher.Constraint("DistanceY", -1, 1, 2, 2, Q("110 mm")))
pad16 = body16.newObject("PartDesign::Pad", "Pad015")
pad16.Profile = sketch16
pad16.Length = 40
body17 = doc.addObject("PartDesign::Body", "Body016")

# Sketch on XY plane
sketch17 = body17.newObject("Sketcher::SketchObject", "Sketch016")
sketch17.AttachmentSupport = (doc.getObject("XY_Plane016"), [""])
sketch17.MapMode = "FlatFace"
sketch17.AttachmentOffset = App.Placement(V(0, 0, 303), App.Rotation())
sketch17.addGeometry(Part.LineSegment(V(-16, -100, 0), V(-16, -118, 0)), False)
sketch17.addGeometry(Part.LineSegment(V(-16, -118, 0), V(16, -118, 0)), False)
sketch17.addGeometry(Part.LineSegment(V(16, -118, 0), V(16, -100, 0)), False)
sketch17.addGeometry(Part.LineSegment(V(16, -100, 0), V(-16, -100, 0)), False)
sketch17.addConstraint(Sketcher.Constraint("Coincident", 0, 2, 1, 1))
sketch17.addConstraint(Sketcher.Constraint("Coincident", 1, 2, 2, 1))
sketch17.addConstraint(Sketcher.Constraint("Coincident", 2, 2, 3, 1))
sketch17.addConstraint(Sketcher.Constraint("Coincident", 3, 2, 0, 1))
sketch17.addConstraint(Sketcher.Constraint("Vertical", 0))
sketch17.addConstraint(Sketcher.Constraint("Horizontal", 1))
sketch17.addConstraint(Sketcher.Constraint("Vertical", 2))
sketch17.addConstraint(Sketcher.Constraint("Horizontal", 3))
sketch17.addConstraint(Sketcher.Constraint("DistanceX", 1, 1, 1, 2, Q("32 mm")))
sketch17.addConstraint(Sketcher.Constraint("DistanceY", 0, 2, 0, 1, Q("18 mm")))
sketch17.addConstraint(Sketcher.Constraint("DistanceX", 0, 2, -1, 1, Q("16 mm")))
sketch17.addConstraint(Sketcher.Constraint("DistanceY", 0, 2, -1, 1, Q("118 mm")))
pad17 = body17.newObject("PartDesign::Pad", "Pad016")
pad17.Profile = sketch17
pad17.Length = 12
body18 = doc.addObject("PartDesign::Body", "Body017")

# Sketch on XY plane
sketch18 = body18.newObject("Sketcher::SketchObject", "Sketch017")
sketch18.AttachmentSupport = (doc.getObject("XY_Plane017"), [""])
sketch18.MapMode = "FlatFace"
sketch18.AttachmentOffset = App.Placement(V(0, 0, 463), App.Rotation())
sketch18.addGeometry(Part.LineSegment(V(-16, -100, 0), V(-16, -118, 0)), False)
sketch18.addGeometry(Part.LineSegment(V(-16, -118, 0), V(16, -118, 0)), False)
sketch18.addGeometry(Part.LineSegment(V(16, -118, 0), V(16, -100, 0)), False)
sketch18.addGeometry(Part.LineSegment(V(16, -100, 0), V(-16, -100, 0)), False)
sketch18.addConstraint(Sketcher.Constraint("Coincident", 0, 2, 1, 1))
sketch18.addConstraint(Sketcher.Constraint("Coincident", 1, 2, 2, 1))
sketch18.addConstraint(Sketcher.Constraint("Coincident", 2, 2, 3, 1))
sketch18.addConstraint(Sketcher.Constraint("Coincident", 3, 2, 0, 1))
sketch18.addConstraint(Sketcher.Constraint("Vertical", 0))
sketch18.addConstraint(Sketcher.Constraint("Horizontal", 1))
sketch18.addConstraint(Sketcher.Constraint("Vertical", 2))
sketch18.addConstraint(Sketcher.Constraint("Horizontal", 3))
sketch18.addConstraint(Sketcher.Constraint("DistanceX", 1, 1, 1, 2, Q("32 mm")))
sketch18.addConstraint(Sketcher.Constraint("DistanceY", 0, 2, 0, 1, Q("18 mm")))
sketch18.addConstraint(Sketcher.Constraint("DistanceX", 0, 2, -1, 1, Q("16 mm")))
sketch18.addConstraint(Sketcher.Constraint("DistanceY", 0, 2, -1, 1, Q("118 mm")))
pad18 = body18.newObject("PartDesign::Pad", "Pad017")
pad18.Profile = sketch18
pad18.Length = 12

doc.recompute()
